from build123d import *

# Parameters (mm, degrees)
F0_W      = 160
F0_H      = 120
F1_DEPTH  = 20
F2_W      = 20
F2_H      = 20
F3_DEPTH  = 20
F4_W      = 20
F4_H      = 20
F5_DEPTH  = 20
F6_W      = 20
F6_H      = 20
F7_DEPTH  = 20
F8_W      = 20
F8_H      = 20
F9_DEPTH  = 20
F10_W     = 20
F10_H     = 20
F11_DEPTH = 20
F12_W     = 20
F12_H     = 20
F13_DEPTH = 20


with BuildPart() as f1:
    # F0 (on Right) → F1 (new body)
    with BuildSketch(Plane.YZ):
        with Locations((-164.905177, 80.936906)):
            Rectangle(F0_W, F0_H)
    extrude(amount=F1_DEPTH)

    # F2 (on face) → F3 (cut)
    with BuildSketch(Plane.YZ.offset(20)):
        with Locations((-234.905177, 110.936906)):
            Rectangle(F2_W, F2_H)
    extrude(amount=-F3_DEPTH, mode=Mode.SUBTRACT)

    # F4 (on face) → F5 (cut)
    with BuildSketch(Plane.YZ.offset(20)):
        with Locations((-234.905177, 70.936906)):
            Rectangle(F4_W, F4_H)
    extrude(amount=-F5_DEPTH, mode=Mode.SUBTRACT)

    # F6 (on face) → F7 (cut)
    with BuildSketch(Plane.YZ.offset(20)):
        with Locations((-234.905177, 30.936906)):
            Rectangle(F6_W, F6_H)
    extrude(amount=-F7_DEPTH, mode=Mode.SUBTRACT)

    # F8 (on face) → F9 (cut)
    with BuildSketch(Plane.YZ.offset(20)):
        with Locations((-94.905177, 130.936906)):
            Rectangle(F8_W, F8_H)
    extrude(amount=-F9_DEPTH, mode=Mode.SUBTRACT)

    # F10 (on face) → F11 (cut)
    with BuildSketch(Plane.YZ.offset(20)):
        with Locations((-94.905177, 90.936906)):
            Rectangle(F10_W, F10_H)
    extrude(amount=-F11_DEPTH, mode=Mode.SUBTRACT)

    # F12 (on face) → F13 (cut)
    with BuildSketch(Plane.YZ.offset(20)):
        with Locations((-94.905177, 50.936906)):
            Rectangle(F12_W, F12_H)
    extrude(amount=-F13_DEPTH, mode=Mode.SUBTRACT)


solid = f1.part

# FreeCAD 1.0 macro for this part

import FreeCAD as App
import Part
import Sketcher

V = App.Vector
Q = App.Units.Quantity

doc = App.newDocument("Part")
body = doc.addObject("PartDesign::Body", "Body")

# Sketch on YZ plane
sketch1 = body.newObject("Sketcher::SketchObject", "Sketch")
sketch1.AttachmentSupport = (doc.getObject("YZ_Plane"), [""])
sketch1.MapMode = "FlatFace"
sketch1.addGeometry(Part.LineSegment(V(-245, 141, 0), V(-245, 21, 0)), False)
sketch1.addGeometry(Part.LineSegment(V(-245, 21, 0), V(-85, 21, 0)), False)
sketch1.addGeometry(Part.LineSegment(V(-85, 21, 0), V(-85, 141, 0)), False)
sketch1.addGeometry(Part.LineSegment(V(-85, 141, 0), V(-245, 141, 0)), False)
sketch1.addConstraint(Sketcher.Constraint("Coincident", 0, 2, 1, 1))
sketch1.addConstraint(Sketcher.Constraint("Coincident", 1, 2, 2, 1))
sketch1.addConstraint(Sketcher.Constraint("Coincident", 2, 2, 3, 1))
sketch1.addConstraint(Sketcher.Constraint("Coincident", 3, 2, 0, 1))
sketch1.addConstraint(Sketcher.Constraint("Vertical", 0))
sketch1.addConstraint(Sketcher.Constraint("Horizontal", 1))
sketch1.addConstraint(Sketcher.Constraint("Vertical", 2))
sketch1.addConstraint(Sketcher.Constraint("Horizontal", 3))
sketch1.addConstraint(Sketcher.Constraint("DistanceX", 1, 1, 1, 2, Q("160 mm")))
sketch1.addConstraint(Sketcher.Constraint("DistanceY", 0, 2, 0, 1, Q("120 mm")))
sketch1.addConstraint(Sketcher.Constraint("DistanceX", 0, 2, -1, 1, Q("244.905177 mm")))
sketch1.addConstraint(Sketcher.Constraint("DistanceY", -1, 1, 0, 2, Q("20.936906 mm")))
pad1 = body.newObject("PartDesign::Pad", "Pad")
pad1.Profile = sketch1
pad1.Length = 20

# Sketch on YZ plane
sketch2 = body.newObject("Sketcher::SketchObject", "Sketch001")
sketch2.AttachmentSupport = (doc.getObject("YZ_Plane"), [""])
sketch2.MapMode = "FlatFace"
sketch2.AttachmentOffset = App.Placement(V(0, 0, 20), App.Rotation())
sketch2.addGeometry(Part.LineSegment(V(-245, 121, 0), V(-245, 101, 0)), False)
sketch2.addGeometry(Part.LineSegment(V(-245, 101, 0), V(-225, 101, 0)), False)
sketch2.addGeometry(Part.LineSegment(V(-225, 101, 0), V(-225, 121, 0)), False)
sketch2.addGeometry(Part.LineSegment(V(-225, 121, 0), V(-245, 121, 0)), False)
sketch2.addConstraint(Sketcher.Constraint("Coincident", 0, 2, 1, 1))
sketch2.addConstraint(Sketcher.Constraint("Coincident", 1, 2, 2, 1))
sketch2.addConstraint(Sketcher.Constraint("Coincident", 2, 2, 3, 1))
sketch2.addConstraint(Sketcher.Constraint("Coincident", 3, 2, 0, 1))
sketch2.addConstraint(Sketcher.Constraint("Vertical", 0))
sketch2.addConstraint(Sketcher.Constraint("Horizontal", 1))
sketch2.addConstraint(Sketcher.Constraint("Vertical", 2))
sketch2.addConstraint(Sketcher.Constraint("Horizontal", 3))
sketch2.addConstraint(Sketcher.Constraint("Equal", 3, 0))
sketch2.addConstraint(Sketcher.Constraint("DistanceX", 1, 1, 1, 2, Q("20 mm")))
sketch2.addConstraint(Sketcher.Constraint("DistanceX", 0, 2, -1, 1, Q("244.905177 mm")))
sketch2.addConstraint(Sketcher.Constraint("DistanceY", -1, 1, 0, 2, Q("100.936906 mm")))
pocket1 = body.newObject("PartDesign::Pocket", "Pocket")
pocket1.Profile = sketch2
pocket1.Length = 20

# Sketch on YZ plane
sketch3 = body.newObject("Sketcher::SketchObject", "Sketch002")
sketch3.AttachmentSupport = (doc.getObject("YZ_Plane"), [""])
sketch3.MapMode = "FlatFace"
sketch3.AttachmentOffset = App.Placement(V(0, 0, 20), App.Rotation())
sketch3.addGeometry(Part.LineSegment(V(-245, 81, 0), V(-245, 61, 0)), False)
sketch3.addGeometry(Part.LineSegment(V(-245, 61, 0), V(-225, 61, 0)), False)
sketch3.addGeometry(Part.LineSegment(V(-225, 61, 0), V(-225, 81, 0)), False)
sketch3.addGeometry(Part.LineSegment(V(-225, 81, 0), V(-245, 81, 0)), False)
sketch3.addConstraint(Sketcher.Constraint("Coincident", 0, 2, 1, 1))
sketch3.addConstraint(Sketcher.Constraint("Coincident", 1, 2, 2, 1))
sketch3.addConstraint(Sketcher.Constraint("Coincident", 2, 2, 3, 1))
sketch3.addConstraint(Sketcher.Constraint("Coincident", 3, 2, 0, 1))
sketch3.addConstraint(Sketcher.Constraint("Vertical", 0))
sketch3.addConstraint(Sketcher.Constraint("Horizontal", 1))
sketch3.addConstraint(Sketcher.Constraint("Vertical", 2))
sketch3.addConstraint(Sketcher.Constraint("Horizontal", 3))
sketch3.addConstraint(Sketcher.Constraint("Equal", 3, 0))
sketch3.addConstraint(Sketcher.Constraint("DistanceX", 1, 1, 1, 2, Q("20 mm")))
sketch3.addConstraint(Sketcher.Constraint("DistanceX", 0, 2, -1, 1, Q("244.905177 mm")))
sketch3.addConstraint(Sketcher.Constraint("DistanceY", -1, 1, 0, 2, Q("60.936906 mm")))
pocket2 = body.newObject("PartDesign::Pocket", "Pocket001")
pocket2.Profile = sketch3
pocket2.Length = 20

# Sketch on YZ plane
sketch4 = body.newObject("Sketcher::SketchObject", "Sketch003")
sketch4.AttachmentSupport = (doc.getObject("YZ_Plane"), [""])
sketch4.MapMode = "FlatFace"
sketch4.AttachmentOffset = App.Placement(V(0, 0, 20), App.Rotation())
sketch4.addGeometry(Part.LineSegment(V(-245, 41, 0), V(-245, 21, 0)), False)
sketch4.addGeometry(Part.LineSegment(V(-245, 21, 0), V(-225, 21, 0)), False)
sketch4.addGeometry(Part.LineSegment(V(-225, 21, 0), V(-225, 41, 0)), False)
sketch4.addGeometry(Part.LineSegment(V(-225, 41, 0), V(-245, 41, 0)), False)
sketch4.addConstraint(Sketcher.Constraint("Coincident", 0, 2, 1, 1))
sketch4.addConstraint(Sketcher.Constraint("Coincident", 1, 2, 2, 1))
sketch4.addConstraint(Sketcher.Constraint("Coincident", 2, 2, 3, 1))
sketch4.addConstraint(Sketcher.Constraint("Coincident", 3, 2, 0, 1))
sketch4.addConstraint(Sketcher.Constraint("Vertical", 0))
sketch4.addConstraint(Sketcher.Constraint("Horizontal", 1))
sketch4.addConstraint(Sketcher.Constraint("Vertical", 2))
sketch4.addConstraint(Sketcher.Constraint("Horizontal", 3))
sketch4.addConstraint(Sketcher.Constraint("Equal", 3, 0))
sketch4.addConstraint(Sketcher.Constraint("DistanceX", 1, 1, 1, 2, Q("20 mm")))
sketch4.addConstraint(Sketcher.Constraint("DistanceX", 0, 2, -1, 1, Q("244.905177 mm")))
sketch4.addConstraint(Sketcher.Constraint("DistanceY", -1, 1, 0, 2, Q("20.936906 mm")))
pocket3 = body.newObject("PartDesign::Pocket", "Pocket002")
pocket3.Profile = sketch4
pocket3.Length = 20

# Sketch on YZ plane
sketch5 = body.newObject("Sketcher::SketchObject", "Sketch004")
sketch5.AttachmentSupport = (doc.getObject("YZ_Plane"), [""])
sketch5.MapMode = "FlatFace"
sketch5.AttachmentOffset = App.Placement(V(0, 0, 20), App.Rotation())
sketch5.addGeometry(Part.LineSegment(V(-105, 141, 0), V(-105, 121, 0)), False)
sketch5.addGeometry(Part.LineSegment(V(-105, 121, 0), V(-85, 121, 0)), False)
sketch5.addGeometry(Part.LineSegment(V(-85, 121, 0), V(-85, 141, 0)), False)
sketch5.addGeometry(Part.LineSegment(V(-85, 141, 0), V(-105, 141, 0)), False)
sketch5.addConstraint(Sketcher.Constraint("Coincident", 0, 2, 1, 1))
sketch5.addConstraint(Sketcher.Constraint("Coincident", 1, 2, 2, 1))
sketch5.addConstraint(Sketcher.Constraint("Coincident", 2, 2, 3, 1))
sketch5.addConstraint(Sketcher.Constraint("Coincident", 3, 2, 0, 1))
sketch5.addConstraint(Sketcher.Constraint("Vertical", 0))
sketch5.addConstraint(Sketcher.Constraint("Horizontal", 1))
sketch5.addConstraint(Sketcher.Constraint("Vertical", 2))
sketch5.addConstraint(Sketcher.Constraint("Horizontal", 3))
sketch5.addConstraint(Sketcher.Constraint("Equal", 3, 0))
sketch5.addConstraint(Sketcher.Constraint("DistanceX", 1, 1, 1, 2, Q("20 mm")))
sketch5.addConstraint(Sketcher.Constraint("DistanceX", 0, 2, -1, 1, Q("104.905177 mm")))
sketch5.addConstraint(Sketcher.Constraint("DistanceY", -1, 1, 0, 2, Q("120.936906 mm")))
pocket4 = body.newObject("PartDesign::Pocket", "Pocket003")
pocket4.Profile = sketch5
pocket4.Length = 20

# Sketch on YZ plane
sketch6 = body.newObject("Sketcher::SketchObject", "Sketch005")
sketch6.AttachmentSupport = (doc.getObject("YZ_Plane"), [""])
sketch6.MapMode = "FlatFace"
sketch6.AttachmentOffset = App.Placement(V(0, 0, 20), App.Rotation())
sketch6.addGeometry(Part.LineSegment(V(-105, 101, 0), V(-105, 81, 0)), False)
sketch6.addGeometry(Part.LineSegment(V(-105, 81, 0), V(-85, 81, 0)), False)
sketch6.addGeometry(Part.LineSegment(V(-85, 81, 0), V(-85, 101, 0)), False)
sketch6.addGeometry(Part.LineSegment(V(-85, 101, 0), V(-105, 101, 0)), False)
sketch6.addConstraint(Sketcher.Constraint("Coincident", 0, 2, 1, 1))
sketch6.addConstraint(Sketcher.Constraint("Coincident", 1, 2, 2, 1))
sketch6.addConstraint(Sketcher.Constraint("Coincident", 2, 2, 3, 1))
sketch6.addConstraint(Sketcher.Constraint("Coincident", 3, 2, 0, 1))
sketch6.addConstraint(Sketcher.Constraint("Vertical", 0))
sketch6.addConstraint(Sketcher.Constraint("Horizontal", 1))
sketch6.addConstraint(Sketcher.Constraint("Vertical", 2))
sketch6.addConstraint(Sketcher.Constraint("Horizontal", 3))
sketch6.addConstraint(Sketcher.Constraint("Equal", 3, 0))
sketch6.addConstraint(Sketcher.Constraint("DistanceX", 1, 1, 1, 2, Q("20 mm")))
sketch6.addConstraint(Sketcher.Constraint("DistanceX", 0, 2, -1, 1, Q("104.905177 mm")))
sketch6.addConstraint(Sketcher.Constraint("DistanceY", -1, 1, 0, 2, Q("80.936906 mm")))
pocket5 = body.newObject("PartDesign::Pocket", "Pocket004")
pocket5.Profile = sketch6
pocket5.Length = 20

# Sketch on YZ plane
sketch7 = body.newObject("Sketcher::SketchObject", "Sketch006")
sketch7.AttachmentSupport = (doc.getObject("YZ_Plane"), [""])
sketch7.MapMode = "FlatFace"
sketch7.AttachmentOffset = App.Placement(V(0, 0, 20), App.Rotation())
sketch7.addGeometry(Part.LineSegment(V(-105, 61, 0), V(-105, 41, 0)), False)
sketch7.addGeometry(Part.LineSegment(V(-105, 41, 0), V(-85, 41, 0)), False)
sketch7.addGeometry(Part.LineSegment(V(-85, 41, 0), V(-85, 61, 0)), False)
sketch7.addGeometry(Part.LineSegment(V(-85, 61, 0), V(-105, 61, 0)), False)
sketch7.addConstraint(Sketcher.Constraint("Coincident", 0, 2, 1, 1))
sketch7.addConstraint(Sketcher.Constraint("Coincident", 1, 2, 2, 1))
sketch7.addConstraint(Sketcher.Constraint("Coincident", 2, 2, 3, 1))
sketch7.addConstraint(Sketcher.Constraint("Coincident", 3, 2, 0, 1))
sketch7.addConstraint(Sketcher.Constraint("Vertical", 0))
sketch7.addConstraint(Sketcher.Constraint("Horizontal", 1))
sketch7.addConstraint(Sketcher.Constraint("Vertical", 2))
sketch7.addConstraint(Sketcher.Constraint("Horizontal", 3))
sketch7.addConstraint(Sketcher.Constraint("Equal", 3, 0))
sketch7.addConstraint(Sketcher.Constraint("DistanceX", 1, 1, 1, 2, Q("20 mm")))
sketch7.addConstraint(Sketcher.Constraint("DistanceX", 0, 2, -1, 1, Q("104.905177 mm")))
sketch7.addConstraint(Sketcher.Constraint("DistanceY", -1, 1, 0, 2, Q("40.936906 mm")))
pocket6 = body.newObject("PartDesign::Pocket", "Pocket005")
pocket6.Profile = sketch7
pocket6.Length = 20

doc.recompute()
